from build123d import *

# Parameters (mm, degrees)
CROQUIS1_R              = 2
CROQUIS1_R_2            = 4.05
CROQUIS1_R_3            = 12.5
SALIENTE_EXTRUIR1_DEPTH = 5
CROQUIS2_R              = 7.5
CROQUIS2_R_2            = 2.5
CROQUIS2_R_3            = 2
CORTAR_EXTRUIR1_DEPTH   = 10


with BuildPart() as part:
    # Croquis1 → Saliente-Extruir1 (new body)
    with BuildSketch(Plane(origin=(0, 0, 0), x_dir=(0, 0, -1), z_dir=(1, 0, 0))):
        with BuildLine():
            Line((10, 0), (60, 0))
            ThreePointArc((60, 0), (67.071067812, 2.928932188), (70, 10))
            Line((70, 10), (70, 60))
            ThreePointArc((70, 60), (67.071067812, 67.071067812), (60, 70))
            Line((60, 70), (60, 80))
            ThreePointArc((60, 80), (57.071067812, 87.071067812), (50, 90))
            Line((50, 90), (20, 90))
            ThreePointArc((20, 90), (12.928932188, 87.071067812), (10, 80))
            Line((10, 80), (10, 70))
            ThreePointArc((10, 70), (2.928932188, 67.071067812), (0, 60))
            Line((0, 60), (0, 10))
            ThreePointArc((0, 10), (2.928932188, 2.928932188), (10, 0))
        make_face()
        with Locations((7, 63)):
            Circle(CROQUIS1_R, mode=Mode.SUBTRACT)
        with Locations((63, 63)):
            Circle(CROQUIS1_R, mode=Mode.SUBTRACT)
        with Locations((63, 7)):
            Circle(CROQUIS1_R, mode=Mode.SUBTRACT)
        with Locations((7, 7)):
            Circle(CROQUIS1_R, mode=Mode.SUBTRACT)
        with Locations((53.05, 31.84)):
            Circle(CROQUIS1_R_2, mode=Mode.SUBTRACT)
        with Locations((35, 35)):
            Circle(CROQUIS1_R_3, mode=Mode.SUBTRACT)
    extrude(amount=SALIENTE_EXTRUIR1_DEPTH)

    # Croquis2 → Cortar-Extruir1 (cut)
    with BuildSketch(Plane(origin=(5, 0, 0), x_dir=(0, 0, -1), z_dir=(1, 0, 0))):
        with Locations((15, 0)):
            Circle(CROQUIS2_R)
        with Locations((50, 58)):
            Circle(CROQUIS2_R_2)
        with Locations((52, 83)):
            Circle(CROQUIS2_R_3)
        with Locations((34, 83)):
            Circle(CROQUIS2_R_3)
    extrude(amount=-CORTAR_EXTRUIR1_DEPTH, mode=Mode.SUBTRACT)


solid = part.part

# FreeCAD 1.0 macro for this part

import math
import FreeCAD as App
import Part
import Sketcher
Q = App.Units.Quantity

doc = App.newDocument("Part")
body = doc.addObject("PartDesign::Body", "Body")

sketch1 = doc.addObject("Sketcher::SketchObject", "Sketch")
body.addObject(sketch1)
sketch1.AttachmentSupport = (doc.YZ_Plane, [""])
sketch1.MapMode = "FlatFace"
sketch1.addGeometry([
    Part.LineSegment(App.Vector(0, -10, 0), App.Vector(0, -60, 0)),
    Part.ArcOfCircle(Part.Circle(App.Vector(10, -60, 0), App.Vector(0, 0, 1), 10), math.radians(180), math.radians(270)),
    Part.LineSegment(App.Vector(10, -70, 0), App.Vector(60, -70, 0)),
    Part.ArcOfCircle(Part.Circle(App.Vector(60, -60, 0), App.Vector(0, 0, 1), 10), math.radians(-90), math.radians(0)),
    Part.LineSegment(App.Vector(70, -60, 0), App.Vector(80, -60, 0)),
    Part.ArcOfCircle(Part.Circle(App.Vector(80, -50, 0), App.Vector(0, 0, 1), 10), math.radians(-90), math.radians(0)),
    Part.LineSegment(App.Vector(90, -50, 0), App.Vector(90, -20, 0)),
    Part.ArcOfCircle(Part.Circle(App.Vector(80, -20, 0), App.Vector(0, 0, 1), 10), math.radians(0), math.radians(90)),
    Part.LineSegment(App.Vector(80, -10, 0), App.Vector(70, -10, 0)),
    Part.ArcOfCircle(Part.Circle(App.Vector(60, -10, 0), App.Vector(0, 0, 1), 10), math.radians(0), math.radians(90)),
    Part.LineSegment(App.Vector(60, 0, 0), App.Vector(10, 0, 0)),
    Part.ArcOfCircle(Part.Circle(App.Vector(10, -10, 0), App.Vector(0, 0, 1), 10), math.radians(90), math.radians(180)),
    Part.Circle(App.Vector(7, -7, 0), App.Vector(0, 0, 1), 2),
    Part.Circle(App.Vector(7, -63, 0), App.Vector(0, 0, 1), 2),
    Part.Circle(App.Vector(31.8, -53, 0), App.Vector(0, 0, 1), 4),
    Part.Circle(App.Vector(63, -7, 0), App.Vector(0, 0, 1), 2),
    Part.Circle(App.Vector(35, -35, 0), App.Vector(0, 0, 1), 12.5),
    Part.Circle(App.Vector(63, -63, 0), App.Vector(0, 0, 1), 2),
], False)
sketch1.addConstraint([
    Sketcher.Constraint("Tangent", 0, 2, 1, 1),
    Sketcher.Constraint("Tangent", 1, 2, 2, 1),
    Sketcher.Constraint("Tangent", 2, 2, 3, 1),
    Sketcher.Constraint("Coincident", 3, 2, 4, 1),
    Sketcher.Constraint("Tangent", 4, 2, 5, 1),
    Sketcher.Constraint("Tangent", 5, 2, 6, 1),
    Sketcher.Constraint("Tangent", 6, 2, 7, 1),
    Sketcher.Constraint("Tangent", 7, 2, 8, 1),
    Sketcher.Constraint("Coincident", 8, 2, 9, 1),
    Sketcher.Constraint("Tangent", 9, 2, 10, 1),
    Sketcher.Constraint("Tangent", 10, 2, 11, 1),
    Sketcher.Constraint("Tangent", 11, 2, 0, 1),
    Sketcher.Constraint("Vertical", 0),
    Sketcher.Constraint("Horizontal", 2),
    Sketcher.Constraint("Horizontal", 4),
    Sketcher.Constraint("Vertical", 6),
    Sketcher.Constraint("Horizontal", 8),
    Sketcher.Constraint("Horizontal", 10),
    Sketcher.Constraint("Equal", 1, 3),
    Sketcher.Constraint("Equal", 3, 5),
    Sketcher.Constraint("Equal", 5, 7),
    Sketcher.Constraint("Equal", 7, 9),
    Sketcher.Constraint("Equal", 9, 11),
    Sketcher.Constraint("Equal", 12, 13),
    Sketcher.Constraint("Equal", 13, 15),
    Sketcher.Constraint("Equal", 15, 17),
    Sketcher.Constraint("PointOnObject", 0, 2, -2),
    Sketcher.Constraint("PointOnObject", 9, 2, -1),
    Sketcher.Constraint("Horizontal", 12, 3, 15, 3),
    Sketcher.Constraint("Horizontal", 13, 3, 17, 3),
    Sketcher.Constraint("Horizontal", 0, 2, 3, 2),
    Sketcher.Constraint("Horizontal", 11, 3, 7, 2),
    Sketcher.Constraint("Vertical", 3, 3, 9, 3),
    Sketcher.Constraint("Vertical", 12, 3, 13, 3),
    Sketcher.Constraint("Vertical", 15, 3, 17, 3),
    Sketcher.Constraint("Equal", 10, 0),
    Sketcher.Constraint("Diameter", 12, Q("4 mm")),
    Sketcher.Constraint("Diameter", 16, Q("25 mm")),
    Sketcher.Constraint("Radius", 1, Q("10 mm")),
    Sketcher.Constraint("Diameter", 14, Q("8.1 mm")),
    Sketcher.Constraint("DistanceX", 2, 1, 2, 2, Q("50 mm")),
    Sketcher.Constraint("DistanceX", 4, 1, 4, 2, Q("10 mm")),
    Sketcher.Constraint("DistanceX", -1, 1, 12, 3, Q("7 mm")),
    Sketcher.Constraint("DistanceY", 12, 3, -1, 1, Q("7 mm")),
    Sketcher.Constraint("DistanceY", 13, 3, -1, 1, Q("63 mm")),
    Sketcher.Constraint("DistanceX", -1, 1, 15, 3, Q("63 mm")),
    Sketcher.Constraint("DistanceX", -1, 1, 16, 3, Q("35 mm")),
    Sketcher.Constraint("DistanceY", 16, 3, -1, 1, Q("35 mm")),
    Sketcher.Constraint("DistanceX", -1, 1, 14, 3, Q("31.84 mm")),
    Sketcher.Constraint("DistanceY", 14, 3, -1, 1, Q("53.05 mm")),
])
pad1 = doc.addObject("PartDesign::Pad", "Pad")
body.addObject(pad1)
pad1.Profile = sketch1
pad1.Length = 5

sketch2 = doc.addObject("Sketcher::SketchObject", "Sketch001")
body.addObject(sketch2)
sketch2.AttachmentSupport = (doc.YZ_Plane, [""])
sketch2.MapMode = "FlatFace"
sketch2.AttachmentOffset = App.Placement(App.Vector(0, 0, 5), App.Rotation())
sketch2.addGeometry([
    Part.Circle(App.Vector(0, -15, 0), App.Vector(0, 0, 1), 7.5),
    Part.Circle(App.Vector(58, -50, 0), App.Vector(0, 0, 1), 2.5),
    Part.Circle(App.Vector(83, -52, 0), App.Vector(0, 0, 1), 2),
    Part.Circle(App.Vector(83, -34, 0), App.Vector(0, 0, 1), 2),
], False)
sketch2.addConstraint([
    Sketcher.Constraint("Equal", 2, 3),
    Sketcher.Constraint("PointOnObject", 0, 3, -2),
    Sketcher.Constraint("Vertical", 2, 3, 3, 3),
    Sketcher.Constraint("Diameter", 0, Q("15 mm")),
    Sketcher.Constraint("Diameter", 1, Q("5 mm")),
    Sketcher.Constraint("Diameter", 2, Q("4 mm")),
    Sketcher.Constraint("DistanceY", 0, 3, -1, 1, Q("15 mm")),
    Sketcher.Constraint("DistanceX", -1, 1, 1, 3, Q("58 mm")),
    Sketcher.Constraint("DistanceY", 1, 3, -1, 1, Q("50 mm")),
    Sketcher.Constraint("DistanceX", -1, 1, 2, 3, Q("83 mm")),
    Sketcher.Constraint("DistanceY", 2, 3, -1, 1, Q("52 mm")),
    Sketcher.Constraint("DistanceY", 3, 3, -1, 1, Q("34 mm")),
])
pocket1 = doc.addObject("PartDesign::Pocket", "Pocket")
body.addObject(pocket1)
pocket1.Profile = sketch2
pocket1.Length = 10

doc.recompute()
